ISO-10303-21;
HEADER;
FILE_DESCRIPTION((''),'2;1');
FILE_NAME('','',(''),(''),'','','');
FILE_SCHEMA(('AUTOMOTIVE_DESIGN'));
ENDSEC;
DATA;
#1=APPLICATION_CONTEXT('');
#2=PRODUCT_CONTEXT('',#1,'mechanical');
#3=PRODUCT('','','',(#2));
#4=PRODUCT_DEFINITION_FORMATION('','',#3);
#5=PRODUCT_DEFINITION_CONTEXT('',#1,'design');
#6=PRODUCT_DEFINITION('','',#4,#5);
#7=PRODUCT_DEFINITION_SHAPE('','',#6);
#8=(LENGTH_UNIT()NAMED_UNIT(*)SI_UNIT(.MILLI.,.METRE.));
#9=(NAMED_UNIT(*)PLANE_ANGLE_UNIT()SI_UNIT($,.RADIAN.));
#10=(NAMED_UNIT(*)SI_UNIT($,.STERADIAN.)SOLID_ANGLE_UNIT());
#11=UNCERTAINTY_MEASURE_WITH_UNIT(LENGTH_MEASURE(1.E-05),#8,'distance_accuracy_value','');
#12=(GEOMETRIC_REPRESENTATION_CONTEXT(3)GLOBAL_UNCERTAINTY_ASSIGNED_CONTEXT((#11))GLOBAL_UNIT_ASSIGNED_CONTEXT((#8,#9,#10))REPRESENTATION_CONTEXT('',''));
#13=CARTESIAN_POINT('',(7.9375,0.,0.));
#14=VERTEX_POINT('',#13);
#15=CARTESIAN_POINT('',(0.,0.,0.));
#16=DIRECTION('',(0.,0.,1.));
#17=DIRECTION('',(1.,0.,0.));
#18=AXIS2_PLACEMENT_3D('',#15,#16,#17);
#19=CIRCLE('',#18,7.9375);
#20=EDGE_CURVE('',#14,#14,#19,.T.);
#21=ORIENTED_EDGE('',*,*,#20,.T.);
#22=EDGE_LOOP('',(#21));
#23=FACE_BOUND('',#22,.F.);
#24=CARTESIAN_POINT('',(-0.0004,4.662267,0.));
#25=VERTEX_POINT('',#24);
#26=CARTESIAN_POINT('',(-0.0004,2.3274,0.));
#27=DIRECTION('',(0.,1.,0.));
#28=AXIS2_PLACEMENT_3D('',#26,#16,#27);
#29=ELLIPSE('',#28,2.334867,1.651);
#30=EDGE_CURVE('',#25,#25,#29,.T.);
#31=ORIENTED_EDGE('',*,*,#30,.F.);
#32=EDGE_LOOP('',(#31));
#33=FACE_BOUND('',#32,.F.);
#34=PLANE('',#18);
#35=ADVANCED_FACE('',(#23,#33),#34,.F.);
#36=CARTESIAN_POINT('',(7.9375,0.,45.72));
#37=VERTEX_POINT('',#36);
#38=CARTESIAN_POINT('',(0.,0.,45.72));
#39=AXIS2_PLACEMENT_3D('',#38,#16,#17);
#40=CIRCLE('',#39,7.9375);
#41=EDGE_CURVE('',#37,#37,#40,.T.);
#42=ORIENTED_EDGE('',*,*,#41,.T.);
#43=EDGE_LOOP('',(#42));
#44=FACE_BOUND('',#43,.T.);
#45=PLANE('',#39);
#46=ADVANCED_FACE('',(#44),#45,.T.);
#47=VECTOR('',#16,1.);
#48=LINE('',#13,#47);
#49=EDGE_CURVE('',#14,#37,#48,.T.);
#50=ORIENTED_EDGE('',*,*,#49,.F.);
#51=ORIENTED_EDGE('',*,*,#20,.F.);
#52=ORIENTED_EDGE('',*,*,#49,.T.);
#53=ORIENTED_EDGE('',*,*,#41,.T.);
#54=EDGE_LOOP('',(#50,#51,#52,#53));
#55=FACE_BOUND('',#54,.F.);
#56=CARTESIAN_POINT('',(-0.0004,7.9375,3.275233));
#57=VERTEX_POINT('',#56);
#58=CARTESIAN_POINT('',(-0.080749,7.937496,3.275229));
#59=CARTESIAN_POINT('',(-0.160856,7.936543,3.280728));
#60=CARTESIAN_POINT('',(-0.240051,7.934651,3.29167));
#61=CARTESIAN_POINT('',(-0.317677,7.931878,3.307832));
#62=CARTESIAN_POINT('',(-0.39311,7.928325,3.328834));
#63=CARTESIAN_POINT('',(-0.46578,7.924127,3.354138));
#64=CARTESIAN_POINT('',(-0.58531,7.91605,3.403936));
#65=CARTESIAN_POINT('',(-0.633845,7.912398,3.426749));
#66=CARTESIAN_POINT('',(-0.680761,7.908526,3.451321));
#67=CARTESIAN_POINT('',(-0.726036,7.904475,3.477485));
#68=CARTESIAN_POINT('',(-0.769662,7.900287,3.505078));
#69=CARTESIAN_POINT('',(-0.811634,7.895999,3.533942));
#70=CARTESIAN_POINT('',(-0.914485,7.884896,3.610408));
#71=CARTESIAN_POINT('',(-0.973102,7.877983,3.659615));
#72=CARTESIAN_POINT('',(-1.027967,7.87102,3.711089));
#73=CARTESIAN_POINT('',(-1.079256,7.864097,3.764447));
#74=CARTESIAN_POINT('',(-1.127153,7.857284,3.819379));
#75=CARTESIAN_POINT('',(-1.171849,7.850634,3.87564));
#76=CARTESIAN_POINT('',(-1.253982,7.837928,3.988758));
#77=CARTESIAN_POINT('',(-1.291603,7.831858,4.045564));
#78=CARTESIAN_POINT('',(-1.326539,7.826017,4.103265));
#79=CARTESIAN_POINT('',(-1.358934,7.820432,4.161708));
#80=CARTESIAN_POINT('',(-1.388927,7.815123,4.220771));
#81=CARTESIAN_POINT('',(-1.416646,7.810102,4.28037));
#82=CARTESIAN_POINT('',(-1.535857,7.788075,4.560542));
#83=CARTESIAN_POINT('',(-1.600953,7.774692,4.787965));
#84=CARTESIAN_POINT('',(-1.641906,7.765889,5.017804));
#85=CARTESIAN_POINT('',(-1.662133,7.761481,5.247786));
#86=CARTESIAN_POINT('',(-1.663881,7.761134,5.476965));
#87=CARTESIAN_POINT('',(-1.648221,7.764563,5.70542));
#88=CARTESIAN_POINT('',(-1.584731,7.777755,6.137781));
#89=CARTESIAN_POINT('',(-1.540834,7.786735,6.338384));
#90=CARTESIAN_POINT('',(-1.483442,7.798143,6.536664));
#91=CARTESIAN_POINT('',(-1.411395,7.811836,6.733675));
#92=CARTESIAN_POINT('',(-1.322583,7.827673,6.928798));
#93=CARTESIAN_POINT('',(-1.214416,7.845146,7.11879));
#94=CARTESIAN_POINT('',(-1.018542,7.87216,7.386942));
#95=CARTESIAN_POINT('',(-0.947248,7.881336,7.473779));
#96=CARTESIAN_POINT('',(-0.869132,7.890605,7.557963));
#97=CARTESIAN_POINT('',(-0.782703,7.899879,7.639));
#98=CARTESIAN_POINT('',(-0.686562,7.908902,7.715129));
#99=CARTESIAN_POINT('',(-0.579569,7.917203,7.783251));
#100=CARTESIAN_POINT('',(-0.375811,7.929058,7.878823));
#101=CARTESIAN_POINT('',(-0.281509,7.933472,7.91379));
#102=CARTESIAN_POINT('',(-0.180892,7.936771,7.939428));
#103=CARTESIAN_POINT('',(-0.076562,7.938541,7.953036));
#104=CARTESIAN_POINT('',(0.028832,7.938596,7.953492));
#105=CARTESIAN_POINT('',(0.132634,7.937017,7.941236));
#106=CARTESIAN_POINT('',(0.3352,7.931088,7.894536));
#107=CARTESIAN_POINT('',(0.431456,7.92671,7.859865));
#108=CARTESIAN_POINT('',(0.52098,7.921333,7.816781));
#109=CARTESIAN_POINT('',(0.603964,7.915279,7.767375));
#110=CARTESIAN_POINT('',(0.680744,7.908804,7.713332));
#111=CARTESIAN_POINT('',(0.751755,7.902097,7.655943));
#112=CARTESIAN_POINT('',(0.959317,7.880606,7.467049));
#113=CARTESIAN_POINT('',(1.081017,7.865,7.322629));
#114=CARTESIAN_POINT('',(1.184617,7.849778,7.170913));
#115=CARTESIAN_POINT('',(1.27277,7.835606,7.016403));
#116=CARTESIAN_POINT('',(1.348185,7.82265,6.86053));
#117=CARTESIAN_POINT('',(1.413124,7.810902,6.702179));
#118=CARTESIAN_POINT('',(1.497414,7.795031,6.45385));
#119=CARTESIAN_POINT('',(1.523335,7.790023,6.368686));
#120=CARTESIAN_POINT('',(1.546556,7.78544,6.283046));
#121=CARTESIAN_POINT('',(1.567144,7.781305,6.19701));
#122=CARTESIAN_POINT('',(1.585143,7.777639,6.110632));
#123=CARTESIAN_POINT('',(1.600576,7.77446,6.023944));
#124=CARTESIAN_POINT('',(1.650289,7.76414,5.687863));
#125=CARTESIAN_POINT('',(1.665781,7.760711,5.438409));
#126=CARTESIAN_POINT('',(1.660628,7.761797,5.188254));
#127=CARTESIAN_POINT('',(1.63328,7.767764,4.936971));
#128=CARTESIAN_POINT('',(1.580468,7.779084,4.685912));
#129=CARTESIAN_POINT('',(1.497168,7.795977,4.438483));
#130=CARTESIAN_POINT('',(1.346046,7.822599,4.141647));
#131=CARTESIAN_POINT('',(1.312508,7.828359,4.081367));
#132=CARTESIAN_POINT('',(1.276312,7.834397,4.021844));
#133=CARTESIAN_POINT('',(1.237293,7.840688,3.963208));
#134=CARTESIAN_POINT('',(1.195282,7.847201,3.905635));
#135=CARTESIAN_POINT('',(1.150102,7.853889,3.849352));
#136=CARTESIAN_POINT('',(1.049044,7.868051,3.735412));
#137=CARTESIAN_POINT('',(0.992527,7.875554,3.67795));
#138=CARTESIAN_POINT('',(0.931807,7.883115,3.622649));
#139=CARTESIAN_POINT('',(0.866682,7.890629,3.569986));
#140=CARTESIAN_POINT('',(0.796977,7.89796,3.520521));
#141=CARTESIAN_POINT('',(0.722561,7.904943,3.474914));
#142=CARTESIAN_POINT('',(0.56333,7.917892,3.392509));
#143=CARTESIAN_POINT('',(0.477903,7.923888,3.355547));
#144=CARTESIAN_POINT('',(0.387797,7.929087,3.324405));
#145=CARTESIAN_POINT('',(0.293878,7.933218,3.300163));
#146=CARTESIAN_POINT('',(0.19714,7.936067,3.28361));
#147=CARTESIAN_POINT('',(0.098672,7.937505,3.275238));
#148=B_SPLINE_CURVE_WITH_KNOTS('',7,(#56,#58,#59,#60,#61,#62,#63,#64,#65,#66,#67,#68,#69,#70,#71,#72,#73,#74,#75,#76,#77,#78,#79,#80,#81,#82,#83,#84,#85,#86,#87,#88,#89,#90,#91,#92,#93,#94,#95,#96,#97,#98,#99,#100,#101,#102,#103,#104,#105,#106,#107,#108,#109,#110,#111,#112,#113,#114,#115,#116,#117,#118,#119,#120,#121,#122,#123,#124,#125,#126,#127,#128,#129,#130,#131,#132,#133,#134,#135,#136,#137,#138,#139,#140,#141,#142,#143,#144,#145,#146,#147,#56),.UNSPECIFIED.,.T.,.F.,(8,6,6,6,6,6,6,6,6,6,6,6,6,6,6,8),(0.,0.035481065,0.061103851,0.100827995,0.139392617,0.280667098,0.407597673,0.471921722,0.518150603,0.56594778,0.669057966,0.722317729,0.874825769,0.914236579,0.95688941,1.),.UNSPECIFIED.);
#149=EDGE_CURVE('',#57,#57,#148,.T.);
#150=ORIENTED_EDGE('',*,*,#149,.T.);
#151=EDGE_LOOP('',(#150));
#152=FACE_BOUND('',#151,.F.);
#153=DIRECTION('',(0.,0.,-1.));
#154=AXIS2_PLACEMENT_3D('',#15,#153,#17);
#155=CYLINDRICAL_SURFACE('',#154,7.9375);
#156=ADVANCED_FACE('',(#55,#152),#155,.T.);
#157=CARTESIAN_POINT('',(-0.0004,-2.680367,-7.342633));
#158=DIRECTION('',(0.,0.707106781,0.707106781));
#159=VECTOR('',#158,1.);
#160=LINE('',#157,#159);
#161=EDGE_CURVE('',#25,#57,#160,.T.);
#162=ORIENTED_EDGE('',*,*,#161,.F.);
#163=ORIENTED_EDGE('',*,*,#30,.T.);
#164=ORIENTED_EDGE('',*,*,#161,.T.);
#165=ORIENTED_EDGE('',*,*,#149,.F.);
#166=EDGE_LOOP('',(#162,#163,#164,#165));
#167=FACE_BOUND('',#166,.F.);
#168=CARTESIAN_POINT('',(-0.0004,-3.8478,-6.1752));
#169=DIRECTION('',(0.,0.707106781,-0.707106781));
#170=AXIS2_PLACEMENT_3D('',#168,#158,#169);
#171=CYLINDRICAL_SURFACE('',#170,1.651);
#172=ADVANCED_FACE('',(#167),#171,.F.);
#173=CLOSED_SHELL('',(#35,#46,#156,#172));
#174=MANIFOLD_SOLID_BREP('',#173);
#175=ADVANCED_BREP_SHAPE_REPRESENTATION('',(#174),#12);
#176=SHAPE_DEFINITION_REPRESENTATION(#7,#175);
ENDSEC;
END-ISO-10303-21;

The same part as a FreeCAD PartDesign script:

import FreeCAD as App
import Part
import Sketcher

V = App.Vector
Q = App.Units.Quantity

doc = App.newDocument("Part")
body = doc.addObject("PartDesign::Body", "Body")

sketch1 = body.newObject("Sketcher::SketchObject", "Sketch")
sketch1.AttachmentSupport = (doc.getObject("XY_Plane"), [""])
sketch1.MapMode = "FlatFace"
sketch1.addGeometry(Part.Circle(V(0, 0, 0), V(0, 0, 1), 8), False)
sketch1.addConstraint([
    Sketcher.Constraint("Coincident", 0, 3, -1, 1),
    Sketcher.Constraint("Diameter", 0, Q("0.625 in")),
])
pad1 = body.newObject("PartDesign::Pad", "Pad")
pad1.Profile = sketch1
pad1.Length = Q("1.8 in")

sketch2 = body.newObject("Sketcher::SketchObject", "Sketch001")
sketch2.Placement = App.Placement(V(0, 7.9375, 0), App.Rotation(V(-1, 0, 0), V(0, -0.707106781, 0.707106781), V(0, 0.707106781, 0.707106781), "ZXY"))
sketch2.addGeometry(Part.Circle(V(0, 4, 0), V(0, 0, 1), 1.6), False)
sketch2.addConstraint([
    Sketcher.Constraint("PointOnObject", 0, 3, -2),
    Sketcher.Constraint("Diameter", 0, Q("0.125 in")),
    Sketcher.Constraint("DistanceY", -1, 1, 0, 3, 3.9683),
])
pad2 = body.newObject("PartDesign::Pad", "Pad001")
pad2.Profile = sketch2
pad2.Length = Q("1 in")
pad2.Midplane = True

sketch3 = body.newObject("Sketcher::SketchObject", "Sketch002")
sketch3.Placement = App.Placement(V(0, -5.0115, -5.0115), App.Rotation(V(0, 0.707106781, -0.707106781), V(0.999999999, 0, 0), V(0, -0.707106781, -0.707106781), "ZXY"))
sketch3.addGeometry(Part.Circle(V(1.6, 0, 0), V(0, 0, 1), 1.7), False)
sketch3.addConstraint([
    Sketcher.Constraint("Diameter", 0, Q("0.13 in")),
    Sketcher.Constraint("DistanceX", -1, 1, 0, 3, Q("0.0648 in")),
    Sketcher.Constraint("DistanceY", 0, 3, -1, 1, 0.0004),
])
doc.recompute()
hole = body.newObject("PartDesign::Hole", "Hole")
hole.Profile = sketch3
hole.ThreadType = "None"
hole.Diameter = Q("0.13 in")
hole.DepthType = "Dimension"
hole.Depth = Q("1 in")
hole.DrillPoint = "Angled"
hole.DrillPointAngle = 118

doc.recompute()
